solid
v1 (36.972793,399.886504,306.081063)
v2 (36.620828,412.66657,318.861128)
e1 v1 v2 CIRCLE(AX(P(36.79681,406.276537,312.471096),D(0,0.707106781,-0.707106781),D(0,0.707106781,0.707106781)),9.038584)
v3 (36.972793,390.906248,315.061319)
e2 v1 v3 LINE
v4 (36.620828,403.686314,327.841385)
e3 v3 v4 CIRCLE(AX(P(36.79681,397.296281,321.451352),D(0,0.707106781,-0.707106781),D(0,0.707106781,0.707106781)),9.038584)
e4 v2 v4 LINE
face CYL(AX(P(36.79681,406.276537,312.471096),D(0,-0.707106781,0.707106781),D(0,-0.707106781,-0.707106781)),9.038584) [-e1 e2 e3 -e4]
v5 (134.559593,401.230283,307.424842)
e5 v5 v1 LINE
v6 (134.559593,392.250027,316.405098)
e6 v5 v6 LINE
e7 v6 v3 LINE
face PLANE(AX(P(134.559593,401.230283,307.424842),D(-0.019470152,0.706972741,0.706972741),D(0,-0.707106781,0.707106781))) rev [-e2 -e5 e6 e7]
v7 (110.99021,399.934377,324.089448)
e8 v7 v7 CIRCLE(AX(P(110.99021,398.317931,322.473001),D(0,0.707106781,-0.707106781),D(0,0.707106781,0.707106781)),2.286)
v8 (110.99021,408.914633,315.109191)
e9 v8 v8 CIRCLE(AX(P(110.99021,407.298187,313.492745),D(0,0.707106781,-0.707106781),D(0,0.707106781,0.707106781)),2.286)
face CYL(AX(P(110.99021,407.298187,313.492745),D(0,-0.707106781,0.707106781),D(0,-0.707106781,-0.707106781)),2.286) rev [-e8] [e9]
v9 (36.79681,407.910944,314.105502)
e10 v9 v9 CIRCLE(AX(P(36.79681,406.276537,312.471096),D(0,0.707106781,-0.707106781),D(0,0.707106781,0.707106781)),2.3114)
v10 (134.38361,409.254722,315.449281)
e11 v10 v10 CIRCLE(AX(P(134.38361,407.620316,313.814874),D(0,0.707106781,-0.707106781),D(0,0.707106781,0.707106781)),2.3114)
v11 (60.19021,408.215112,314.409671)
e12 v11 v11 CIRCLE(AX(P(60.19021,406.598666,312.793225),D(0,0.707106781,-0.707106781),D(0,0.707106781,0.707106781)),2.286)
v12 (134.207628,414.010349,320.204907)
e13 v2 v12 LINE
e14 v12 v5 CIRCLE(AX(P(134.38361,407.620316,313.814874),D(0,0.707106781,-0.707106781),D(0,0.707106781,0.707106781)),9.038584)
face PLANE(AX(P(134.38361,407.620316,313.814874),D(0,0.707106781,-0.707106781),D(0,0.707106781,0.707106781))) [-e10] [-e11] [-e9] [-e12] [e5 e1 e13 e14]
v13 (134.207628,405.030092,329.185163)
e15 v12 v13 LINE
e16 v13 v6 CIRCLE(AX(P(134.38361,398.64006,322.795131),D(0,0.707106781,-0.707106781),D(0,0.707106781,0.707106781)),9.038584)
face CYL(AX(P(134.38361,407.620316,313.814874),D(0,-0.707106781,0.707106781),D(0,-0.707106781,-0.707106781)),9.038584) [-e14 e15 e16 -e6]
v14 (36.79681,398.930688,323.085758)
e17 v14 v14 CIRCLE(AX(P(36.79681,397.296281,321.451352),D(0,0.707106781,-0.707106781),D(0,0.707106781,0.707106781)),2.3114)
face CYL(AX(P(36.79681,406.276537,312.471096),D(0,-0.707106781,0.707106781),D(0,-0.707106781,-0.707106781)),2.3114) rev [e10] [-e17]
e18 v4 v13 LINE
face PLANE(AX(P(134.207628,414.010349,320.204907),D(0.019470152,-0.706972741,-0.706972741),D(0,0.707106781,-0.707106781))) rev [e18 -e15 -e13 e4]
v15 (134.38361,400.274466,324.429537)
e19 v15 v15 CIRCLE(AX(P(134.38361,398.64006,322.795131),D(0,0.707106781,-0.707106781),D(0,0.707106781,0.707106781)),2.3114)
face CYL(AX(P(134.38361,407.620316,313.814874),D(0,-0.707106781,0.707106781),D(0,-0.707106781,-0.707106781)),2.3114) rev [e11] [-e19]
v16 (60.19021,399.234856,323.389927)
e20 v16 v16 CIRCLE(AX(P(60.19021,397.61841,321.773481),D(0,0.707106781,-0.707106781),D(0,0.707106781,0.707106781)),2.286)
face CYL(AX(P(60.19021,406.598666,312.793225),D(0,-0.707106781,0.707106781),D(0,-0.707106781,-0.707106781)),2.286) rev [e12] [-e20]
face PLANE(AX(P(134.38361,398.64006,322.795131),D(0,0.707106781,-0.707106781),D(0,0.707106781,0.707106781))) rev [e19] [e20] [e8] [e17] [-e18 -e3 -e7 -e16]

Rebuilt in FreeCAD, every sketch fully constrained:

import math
import FreeCAD as App
import Part
import Sketcher
Q = App.Units.Quantity

doc = App.newDocument("Part")
body = doc.addObject("PartDesign::Body", "Body")

# Sketch on an angled plane
sketch1 = body.newObject("Sketcher::SketchObject", "Sketch")
sketch1.Placement = App.Placement(App.Vector(0, 37.922465, -37.922465), App.Rotation(App.Vector(-1, 0, 0), App.Vector(0, 0.707106781, 0.707106781), App.Vector(0, 0.707106781, -0.707106781), "ZXY"))
sketch1.addGeometry([
    Part.LineSegment(App.Vector(-36.620828, 517.268196, 0), App.Vector(-134.207628, 519.168586, 0)),  # 0
    Part.ArcOfCircle(Part.Circle(App.Vector(-134.38361, 510.131715, 0), App.Vector(0, 0, 1), 9.038584), math.radians(88.884372), math.radians(268.884372)),  # 1
    Part.LineSegment(App.Vector(-134.559593, 501.094844, 0), App.Vector(-36.972793, 499.194454, 0)),  # 2
    Part.ArcOfCircle(Part.Circle(App.Vector(-36.79681, 508.231325, 0), App.Vector(0, 0, 1), 9.038584), math.radians(-91.115628), math.radians(88.884372)),  # 3
    Part.Circle(App.Vector(-36.79681, 508.231325, 0), App.Vector(0, 0, 1), 2.3114),  # 4
    Part.Circle(App.Vector(-60.19021, 508.686884, 0), App.Vector(0, 0, 1), 2.286),  # 5
    Part.Circle(App.Vector(-110.99021, 509.676156, 0), App.Vector(0, 0, 1), 2.286),  # 6
    Part.Circle(App.Vector(-134.38361, 510.131715, 0), App.Vector(0, 0, 1), 2.3114),  # 7
], False)
sketch1.addConstraint([
    Sketcher.Constraint("Tangent", 0, 2, 1, 1),
    Sketcher.Constraint("Tangent", 1, 2, 2, 1),
    Sketcher.Constraint("Tangent", 2, 2, 3, 1),
    Sketcher.Constraint("Tangent", 3, 2, 0, 1),
    Sketcher.Constraint("Coincident", 4, 3, 3, 3),
    Sketcher.Constraint("Coincident", 7, 3, 1, 3),
    Sketcher.Constraint("Equal", 1, 3),
    Sketcher.Constraint("Equal", 5, 6),
    Sketcher.Constraint("Equal", 4, 7),
    Sketcher.Constraint("Diameter", 5, Q("0.18 in")),
    Sketcher.Constraint("Diameter", 4, Q("0.182 in")),
    Sketcher.Constraint("DistanceX", 6, 3, 5, 3, Q("2 in")),
    Sketcher.Constraint("DistanceX", 1, 3, 3, 3, Q("3.842 in")),
    Sketcher.Constraint("DistanceX", 5, 3, 3, 3, Q("0.921 in")),
    Sketcher.Constraint("Radius", 1, Q("9.038584 mm")),
    Sketcher.Constraint("DistanceY", 5, 3, 0, 2, Q("10.481702 mm")),
    Sketcher.Constraint("DistanceY", 2, 2, 6, 3, Q("10.481702 mm")),
    Sketcher.Constraint("DistanceX", 1, 3, -1, 1, Q("134.38361 mm")),
    Sketcher.Constraint("DistanceY", 3, 3, 1, 3, Q("1.90039 mm")),
    Sketcher.Constraint("DistanceY", -1, 1, 1, 3, Q("510.131715 mm")),
])
pad1 = body.newObject("PartDesign::Pad", "Pad")
pad1.Profile = sketch1
pad1.Length = Q("0.5 in")

doc.recompute()
